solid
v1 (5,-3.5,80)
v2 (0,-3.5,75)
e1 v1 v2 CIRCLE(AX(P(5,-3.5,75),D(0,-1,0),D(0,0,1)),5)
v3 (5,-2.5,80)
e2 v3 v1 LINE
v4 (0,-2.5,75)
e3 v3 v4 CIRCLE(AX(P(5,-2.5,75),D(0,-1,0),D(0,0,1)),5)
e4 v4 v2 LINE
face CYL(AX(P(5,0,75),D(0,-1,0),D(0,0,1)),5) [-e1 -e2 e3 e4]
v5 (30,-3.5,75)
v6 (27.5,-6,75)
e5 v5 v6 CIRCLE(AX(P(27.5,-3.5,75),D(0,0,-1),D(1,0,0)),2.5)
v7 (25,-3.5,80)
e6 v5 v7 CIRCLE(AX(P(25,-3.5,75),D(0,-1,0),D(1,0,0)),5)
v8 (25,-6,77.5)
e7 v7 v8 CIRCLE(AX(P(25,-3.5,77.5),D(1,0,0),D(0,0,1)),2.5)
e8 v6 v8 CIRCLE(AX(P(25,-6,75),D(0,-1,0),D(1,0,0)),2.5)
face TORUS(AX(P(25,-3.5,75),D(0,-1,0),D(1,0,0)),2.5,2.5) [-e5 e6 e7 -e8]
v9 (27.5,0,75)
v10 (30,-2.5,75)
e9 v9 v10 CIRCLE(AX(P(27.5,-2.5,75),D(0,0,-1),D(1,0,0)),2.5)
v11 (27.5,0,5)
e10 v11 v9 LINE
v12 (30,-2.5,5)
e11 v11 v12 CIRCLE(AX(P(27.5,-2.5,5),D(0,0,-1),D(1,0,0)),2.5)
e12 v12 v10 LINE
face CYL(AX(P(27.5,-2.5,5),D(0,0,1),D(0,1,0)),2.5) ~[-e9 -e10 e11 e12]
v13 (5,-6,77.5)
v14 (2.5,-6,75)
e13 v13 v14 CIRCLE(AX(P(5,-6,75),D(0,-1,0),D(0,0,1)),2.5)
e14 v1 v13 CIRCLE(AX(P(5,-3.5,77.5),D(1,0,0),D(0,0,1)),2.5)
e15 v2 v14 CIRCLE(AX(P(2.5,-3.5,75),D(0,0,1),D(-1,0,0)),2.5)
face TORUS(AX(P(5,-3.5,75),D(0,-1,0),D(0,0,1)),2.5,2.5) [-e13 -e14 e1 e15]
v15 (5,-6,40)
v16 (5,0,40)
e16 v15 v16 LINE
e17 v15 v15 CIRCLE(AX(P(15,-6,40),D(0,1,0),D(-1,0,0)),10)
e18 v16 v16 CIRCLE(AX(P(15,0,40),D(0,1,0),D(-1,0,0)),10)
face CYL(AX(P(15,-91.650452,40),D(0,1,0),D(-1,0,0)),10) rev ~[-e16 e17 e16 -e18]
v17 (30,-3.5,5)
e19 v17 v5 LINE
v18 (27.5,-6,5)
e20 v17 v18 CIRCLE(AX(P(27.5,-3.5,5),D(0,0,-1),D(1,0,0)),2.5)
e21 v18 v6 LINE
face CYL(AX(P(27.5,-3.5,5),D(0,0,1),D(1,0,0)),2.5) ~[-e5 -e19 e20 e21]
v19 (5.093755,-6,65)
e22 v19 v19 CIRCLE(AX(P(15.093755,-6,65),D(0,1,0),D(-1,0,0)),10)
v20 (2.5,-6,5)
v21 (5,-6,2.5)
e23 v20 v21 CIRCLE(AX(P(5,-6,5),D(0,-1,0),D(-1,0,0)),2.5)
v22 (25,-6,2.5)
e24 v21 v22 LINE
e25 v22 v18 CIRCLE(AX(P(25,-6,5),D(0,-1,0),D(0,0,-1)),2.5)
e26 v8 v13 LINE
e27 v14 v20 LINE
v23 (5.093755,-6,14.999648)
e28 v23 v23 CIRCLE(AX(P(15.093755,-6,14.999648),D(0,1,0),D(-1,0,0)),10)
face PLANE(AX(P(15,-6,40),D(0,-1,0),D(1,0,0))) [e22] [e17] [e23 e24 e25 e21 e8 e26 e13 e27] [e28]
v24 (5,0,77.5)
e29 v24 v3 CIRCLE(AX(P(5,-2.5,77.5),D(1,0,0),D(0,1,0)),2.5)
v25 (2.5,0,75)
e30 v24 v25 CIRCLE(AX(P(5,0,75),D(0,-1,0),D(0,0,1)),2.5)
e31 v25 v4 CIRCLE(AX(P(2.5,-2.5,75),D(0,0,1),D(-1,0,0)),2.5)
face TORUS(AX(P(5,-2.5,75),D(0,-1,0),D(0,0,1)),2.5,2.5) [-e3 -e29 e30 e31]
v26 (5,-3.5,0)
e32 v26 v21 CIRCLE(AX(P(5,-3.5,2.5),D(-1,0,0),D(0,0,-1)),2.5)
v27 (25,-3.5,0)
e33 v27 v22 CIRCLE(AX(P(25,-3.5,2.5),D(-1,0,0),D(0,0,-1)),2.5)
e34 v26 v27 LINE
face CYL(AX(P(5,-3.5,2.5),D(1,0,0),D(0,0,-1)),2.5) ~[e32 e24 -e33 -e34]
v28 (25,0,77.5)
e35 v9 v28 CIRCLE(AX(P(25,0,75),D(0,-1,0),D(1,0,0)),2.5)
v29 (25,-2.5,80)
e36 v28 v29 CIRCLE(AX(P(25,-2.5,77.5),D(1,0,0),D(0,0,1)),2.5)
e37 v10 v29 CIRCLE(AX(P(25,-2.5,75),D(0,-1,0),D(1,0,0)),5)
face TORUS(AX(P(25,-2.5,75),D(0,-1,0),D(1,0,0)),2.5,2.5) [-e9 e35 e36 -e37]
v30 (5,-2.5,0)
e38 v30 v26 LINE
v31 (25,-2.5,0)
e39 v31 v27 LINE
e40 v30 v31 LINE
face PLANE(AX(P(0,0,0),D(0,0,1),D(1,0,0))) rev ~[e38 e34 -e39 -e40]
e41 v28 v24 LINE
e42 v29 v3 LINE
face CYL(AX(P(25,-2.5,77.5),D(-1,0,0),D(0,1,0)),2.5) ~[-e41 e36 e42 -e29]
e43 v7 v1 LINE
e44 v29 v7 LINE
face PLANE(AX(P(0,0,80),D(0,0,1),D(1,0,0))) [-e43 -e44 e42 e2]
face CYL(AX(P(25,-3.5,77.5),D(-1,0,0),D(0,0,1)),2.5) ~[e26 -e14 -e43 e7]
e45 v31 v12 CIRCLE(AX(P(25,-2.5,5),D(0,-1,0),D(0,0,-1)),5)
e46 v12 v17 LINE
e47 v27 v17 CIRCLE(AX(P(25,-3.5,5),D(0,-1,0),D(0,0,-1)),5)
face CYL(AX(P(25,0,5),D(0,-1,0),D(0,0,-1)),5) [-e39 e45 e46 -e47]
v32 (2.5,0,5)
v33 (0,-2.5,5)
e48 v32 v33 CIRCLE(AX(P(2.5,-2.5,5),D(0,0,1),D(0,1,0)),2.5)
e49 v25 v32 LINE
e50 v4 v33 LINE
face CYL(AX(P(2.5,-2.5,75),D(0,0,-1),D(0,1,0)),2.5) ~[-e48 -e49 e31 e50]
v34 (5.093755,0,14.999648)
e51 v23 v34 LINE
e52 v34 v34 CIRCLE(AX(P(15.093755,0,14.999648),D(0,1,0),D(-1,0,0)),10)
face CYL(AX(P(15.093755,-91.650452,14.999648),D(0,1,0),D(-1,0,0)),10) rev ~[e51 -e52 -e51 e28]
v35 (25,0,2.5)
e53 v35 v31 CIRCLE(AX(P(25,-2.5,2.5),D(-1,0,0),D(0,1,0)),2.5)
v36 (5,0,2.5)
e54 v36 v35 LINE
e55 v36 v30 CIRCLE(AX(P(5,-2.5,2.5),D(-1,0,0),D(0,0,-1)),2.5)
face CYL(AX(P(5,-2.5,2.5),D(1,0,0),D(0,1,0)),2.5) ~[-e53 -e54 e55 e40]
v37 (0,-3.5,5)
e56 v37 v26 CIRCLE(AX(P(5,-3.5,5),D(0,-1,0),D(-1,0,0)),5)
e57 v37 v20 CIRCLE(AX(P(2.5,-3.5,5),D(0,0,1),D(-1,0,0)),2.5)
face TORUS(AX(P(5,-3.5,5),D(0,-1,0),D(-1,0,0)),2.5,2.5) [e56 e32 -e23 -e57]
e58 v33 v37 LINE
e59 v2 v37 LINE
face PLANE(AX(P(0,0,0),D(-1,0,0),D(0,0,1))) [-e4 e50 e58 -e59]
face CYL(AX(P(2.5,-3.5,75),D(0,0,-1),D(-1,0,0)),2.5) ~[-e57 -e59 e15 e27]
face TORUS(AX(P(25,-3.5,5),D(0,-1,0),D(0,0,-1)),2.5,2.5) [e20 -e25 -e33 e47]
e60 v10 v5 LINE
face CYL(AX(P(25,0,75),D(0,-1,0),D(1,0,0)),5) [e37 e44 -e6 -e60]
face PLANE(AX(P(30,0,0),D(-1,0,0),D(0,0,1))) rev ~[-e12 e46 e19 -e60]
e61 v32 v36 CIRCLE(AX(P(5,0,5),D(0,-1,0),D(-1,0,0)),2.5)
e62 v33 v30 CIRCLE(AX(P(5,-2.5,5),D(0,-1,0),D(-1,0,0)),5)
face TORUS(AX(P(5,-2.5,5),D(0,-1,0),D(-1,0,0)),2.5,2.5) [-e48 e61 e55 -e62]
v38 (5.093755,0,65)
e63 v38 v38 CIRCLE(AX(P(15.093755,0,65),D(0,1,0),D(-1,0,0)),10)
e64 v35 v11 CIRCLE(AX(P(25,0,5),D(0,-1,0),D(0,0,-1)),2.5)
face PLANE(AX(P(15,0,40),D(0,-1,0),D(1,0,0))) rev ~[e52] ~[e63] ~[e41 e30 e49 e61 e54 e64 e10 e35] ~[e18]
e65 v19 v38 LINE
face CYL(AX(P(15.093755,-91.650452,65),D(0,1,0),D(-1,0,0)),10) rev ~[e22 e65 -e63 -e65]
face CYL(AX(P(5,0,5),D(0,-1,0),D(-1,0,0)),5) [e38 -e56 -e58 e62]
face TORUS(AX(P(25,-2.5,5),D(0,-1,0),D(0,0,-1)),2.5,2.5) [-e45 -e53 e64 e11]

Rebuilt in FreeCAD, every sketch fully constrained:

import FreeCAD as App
import Part
import Sketcher
from FreeCAD import Vector
Q = App.Units.Quantity


def edges_at(feature, points):
    """Names of the edges that pass closest to the given points."""
    edges = feature.Shape.Edges
    near = lambda p: min(range(len(edges)), key=lambda i: edges[i].distToShape(Part.Vertex(*p))[0])
    return sorted({f"Edge{near(p) + 1}" for p in points})


def add_polygon(sketch, points):
    """Adds a closed chain of lines whose ends are joined by coincident constraints."""
    first, n = sketch.GeometryCount, len(points)
    for a, b in zip(points, points[1:] + points[:1]):
        sketch.addGeometry(Part.LineSegment(App.Vector(*a, 0), App.Vector(*b, 0)), False)
    for i in range(n):
        sketch.addConstraint(Sketcher.Constraint("Coincident", first + i, 2, first + (i + 1) % n, 1))

doc = App.newDocument("Part")
body = doc.addObject("PartDesign::Body", "Body")

# Sketch on XZ plane
sketch1 = body.newObject("Sketcher::SketchObject", "Sketch")
sketch1.AttachmentSupport = (doc.getObject("XZ_Plane"), [""])
sketch1.MapMode = "FlatFace"
add_polygon(sketch1, [(0, 80), (0, 0), (30, 0), (30, 80)])  # lines 0-3
sketch1.addConstraint([
    Sketcher.Constraint("Vertical", 0),
    Sketcher.Constraint("Horizontal", 1),
    Sketcher.Constraint("Vertical", 2),
    Sketcher.Constraint("Horizontal", 3),
    Sketcher.Constraint("Coincident", 0, 2, -1, 1),
    Sketcher.Constraint("DistanceX", 1, 1, 1, 2, Q("30 mm")),
    Sketcher.Constraint("DistanceY", 0, 2, 0, 1, Q("80 mm")),
])
pad1 = body.newObject("PartDesign::Pad", "Pad")
pad1.Profile = sketch1
pad1.Length = 6
doc.recompute()

fillet = body.newObject("PartDesign::Fillet", "Fillet")
fillet.Base = (pad1, edges_at(pad1, [(30, -3, 80)]))
fillet.Radius = 5
doc.recompute()

fillet2 = body.newObject("PartDesign::Fillet", "Fillet001")
fillet2.Base = (fillet, edges_at(fillet, [(0, -3, 80)]))
fillet2.Radius = 5
doc.recompute()

fillet3 = body.newObject("PartDesign::Fillet", "Fillet002")
fillet3.Base = (fillet2, edges_at(fillet2, [(0, -3, 0)]))
fillet3.Radius = 5
doc.recompute()

fillet4 = body.newObject("PartDesign::Fillet", "Fillet003")
fillet4.Base = (fillet3, edges_at(fillet3, [(30, -3, 0)]))
fillet4.Radius = 5
doc.recompute()

fillet5 = body.newObject("PartDesign::Fillet", "Fillet004")
fillet5.Base = (fillet4, edges_at(fillet4, [(28.536, -6, 78.536)]))
fillet5.Radius = 2.5
doc.recompute()

fillet6 = body.newObject("PartDesign::Fillet", "Fillet005")
fillet6.Base = (fillet5, edges_at(fillet5, [(28.536, 0, 78.536)]))
fillet6.Radius = 2.5

# Sketch on XZ plane
sketch2 = body.newObject("Sketcher::SketchObject", "Sketch001")
sketch2.AttachmentSupport = (doc.getObject("XZ_Plane"), [""])
sketch2.MapMode = "FlatFace"
sketch2.AttachmentOffset = App.Placement(Vector(0, 0, 6), App.Rotation())
sketch2.addGeometry(Part.Circle(Vector(15, 40, 0), Vector(0, 0, 1), 10), False)
sketch2.addConstraint([
    Sketcher.Constraint("Diameter", 0, Q("20 mm")),
    Sketcher.Constraint("DistanceX", -1, 1, 0, 3, Q("15 mm")),
    Sketcher.Constraint("DistanceY", -1, 1, 0, 3, Q("40 mm")),
])
doc.recompute()
hole = body.newObject("PartDesign::Hole", "Hole")
hole.Profile = sketch2
hole.ThreadType = "None"
hole.Diameter = 20
hole.DepthType = "ThroughAll"

# Sketch on XZ plane
sketch3 = body.newObject("Sketcher::SketchObject", "Sketch002")
sketch3.AttachmentSupport = (doc.getObject("XZ_Plane"), [""])
sketch3.MapMode = "FlatFace"
sketch3.AttachmentOffset = App.Placement(Vector(0, 0, 6), App.Rotation())
sketch3.addGeometry(Part.Circle(Vector(15, 65, 0), Vector(0, 0, 1), 10), False)
sketch3.addConstraint([
    Sketcher.Constraint("Diameter", 0, Q("20 mm")),
    Sketcher.Constraint("DistanceY", -1, 1, 0, 3, Q("65 mm")),
    Sketcher.Constraint("DistanceX", -1, 1, 0, 3, Q("15.093755 mm")),
])
doc.recompute()
hole2 = body.newObject("PartDesign::Hole", "Hole001")
hole2.Profile = sketch3
hole2.ThreadType = "None"
hole2.Diameter = 20
hole2.DepthType = "ThroughAll"

# Sketch on XZ plane
sketch4 = body.newObject("Sketcher::SketchObject", "Sketch003")
sketch4.AttachmentSupport = (doc.getObject("XZ_Plane"), [""])
sketch4.MapMode = "FlatFace"
sketch4.AttachmentOffset = App.Placement(Vector(0, 0, 6), App.Rotation())
sketch4.addGeometry(Part.Circle(Vector(15, 15, 0), Vector(0, 0, 1), 10), False)
sketch4.addConstraint([
    Sketcher.Constraint("Diameter", 0, Q("20 mm")),
    Sketcher.Constraint("DistanceY", -1, 1, 0, 3, Q("14.999648 mm")),
    Sketcher.Constraint("DistanceX", -1, 1, 0, 3, Q("15.093755 mm")),
])
doc.recompute()
hole3 = body.newObject("PartDesign::Hole", "Hole002")
hole3.Profile = sketch4
hole3.ThreadType = "None"
hole3.Diameter = 20
hole3.DepthType = "ThroughAll"

doc.recompute()
